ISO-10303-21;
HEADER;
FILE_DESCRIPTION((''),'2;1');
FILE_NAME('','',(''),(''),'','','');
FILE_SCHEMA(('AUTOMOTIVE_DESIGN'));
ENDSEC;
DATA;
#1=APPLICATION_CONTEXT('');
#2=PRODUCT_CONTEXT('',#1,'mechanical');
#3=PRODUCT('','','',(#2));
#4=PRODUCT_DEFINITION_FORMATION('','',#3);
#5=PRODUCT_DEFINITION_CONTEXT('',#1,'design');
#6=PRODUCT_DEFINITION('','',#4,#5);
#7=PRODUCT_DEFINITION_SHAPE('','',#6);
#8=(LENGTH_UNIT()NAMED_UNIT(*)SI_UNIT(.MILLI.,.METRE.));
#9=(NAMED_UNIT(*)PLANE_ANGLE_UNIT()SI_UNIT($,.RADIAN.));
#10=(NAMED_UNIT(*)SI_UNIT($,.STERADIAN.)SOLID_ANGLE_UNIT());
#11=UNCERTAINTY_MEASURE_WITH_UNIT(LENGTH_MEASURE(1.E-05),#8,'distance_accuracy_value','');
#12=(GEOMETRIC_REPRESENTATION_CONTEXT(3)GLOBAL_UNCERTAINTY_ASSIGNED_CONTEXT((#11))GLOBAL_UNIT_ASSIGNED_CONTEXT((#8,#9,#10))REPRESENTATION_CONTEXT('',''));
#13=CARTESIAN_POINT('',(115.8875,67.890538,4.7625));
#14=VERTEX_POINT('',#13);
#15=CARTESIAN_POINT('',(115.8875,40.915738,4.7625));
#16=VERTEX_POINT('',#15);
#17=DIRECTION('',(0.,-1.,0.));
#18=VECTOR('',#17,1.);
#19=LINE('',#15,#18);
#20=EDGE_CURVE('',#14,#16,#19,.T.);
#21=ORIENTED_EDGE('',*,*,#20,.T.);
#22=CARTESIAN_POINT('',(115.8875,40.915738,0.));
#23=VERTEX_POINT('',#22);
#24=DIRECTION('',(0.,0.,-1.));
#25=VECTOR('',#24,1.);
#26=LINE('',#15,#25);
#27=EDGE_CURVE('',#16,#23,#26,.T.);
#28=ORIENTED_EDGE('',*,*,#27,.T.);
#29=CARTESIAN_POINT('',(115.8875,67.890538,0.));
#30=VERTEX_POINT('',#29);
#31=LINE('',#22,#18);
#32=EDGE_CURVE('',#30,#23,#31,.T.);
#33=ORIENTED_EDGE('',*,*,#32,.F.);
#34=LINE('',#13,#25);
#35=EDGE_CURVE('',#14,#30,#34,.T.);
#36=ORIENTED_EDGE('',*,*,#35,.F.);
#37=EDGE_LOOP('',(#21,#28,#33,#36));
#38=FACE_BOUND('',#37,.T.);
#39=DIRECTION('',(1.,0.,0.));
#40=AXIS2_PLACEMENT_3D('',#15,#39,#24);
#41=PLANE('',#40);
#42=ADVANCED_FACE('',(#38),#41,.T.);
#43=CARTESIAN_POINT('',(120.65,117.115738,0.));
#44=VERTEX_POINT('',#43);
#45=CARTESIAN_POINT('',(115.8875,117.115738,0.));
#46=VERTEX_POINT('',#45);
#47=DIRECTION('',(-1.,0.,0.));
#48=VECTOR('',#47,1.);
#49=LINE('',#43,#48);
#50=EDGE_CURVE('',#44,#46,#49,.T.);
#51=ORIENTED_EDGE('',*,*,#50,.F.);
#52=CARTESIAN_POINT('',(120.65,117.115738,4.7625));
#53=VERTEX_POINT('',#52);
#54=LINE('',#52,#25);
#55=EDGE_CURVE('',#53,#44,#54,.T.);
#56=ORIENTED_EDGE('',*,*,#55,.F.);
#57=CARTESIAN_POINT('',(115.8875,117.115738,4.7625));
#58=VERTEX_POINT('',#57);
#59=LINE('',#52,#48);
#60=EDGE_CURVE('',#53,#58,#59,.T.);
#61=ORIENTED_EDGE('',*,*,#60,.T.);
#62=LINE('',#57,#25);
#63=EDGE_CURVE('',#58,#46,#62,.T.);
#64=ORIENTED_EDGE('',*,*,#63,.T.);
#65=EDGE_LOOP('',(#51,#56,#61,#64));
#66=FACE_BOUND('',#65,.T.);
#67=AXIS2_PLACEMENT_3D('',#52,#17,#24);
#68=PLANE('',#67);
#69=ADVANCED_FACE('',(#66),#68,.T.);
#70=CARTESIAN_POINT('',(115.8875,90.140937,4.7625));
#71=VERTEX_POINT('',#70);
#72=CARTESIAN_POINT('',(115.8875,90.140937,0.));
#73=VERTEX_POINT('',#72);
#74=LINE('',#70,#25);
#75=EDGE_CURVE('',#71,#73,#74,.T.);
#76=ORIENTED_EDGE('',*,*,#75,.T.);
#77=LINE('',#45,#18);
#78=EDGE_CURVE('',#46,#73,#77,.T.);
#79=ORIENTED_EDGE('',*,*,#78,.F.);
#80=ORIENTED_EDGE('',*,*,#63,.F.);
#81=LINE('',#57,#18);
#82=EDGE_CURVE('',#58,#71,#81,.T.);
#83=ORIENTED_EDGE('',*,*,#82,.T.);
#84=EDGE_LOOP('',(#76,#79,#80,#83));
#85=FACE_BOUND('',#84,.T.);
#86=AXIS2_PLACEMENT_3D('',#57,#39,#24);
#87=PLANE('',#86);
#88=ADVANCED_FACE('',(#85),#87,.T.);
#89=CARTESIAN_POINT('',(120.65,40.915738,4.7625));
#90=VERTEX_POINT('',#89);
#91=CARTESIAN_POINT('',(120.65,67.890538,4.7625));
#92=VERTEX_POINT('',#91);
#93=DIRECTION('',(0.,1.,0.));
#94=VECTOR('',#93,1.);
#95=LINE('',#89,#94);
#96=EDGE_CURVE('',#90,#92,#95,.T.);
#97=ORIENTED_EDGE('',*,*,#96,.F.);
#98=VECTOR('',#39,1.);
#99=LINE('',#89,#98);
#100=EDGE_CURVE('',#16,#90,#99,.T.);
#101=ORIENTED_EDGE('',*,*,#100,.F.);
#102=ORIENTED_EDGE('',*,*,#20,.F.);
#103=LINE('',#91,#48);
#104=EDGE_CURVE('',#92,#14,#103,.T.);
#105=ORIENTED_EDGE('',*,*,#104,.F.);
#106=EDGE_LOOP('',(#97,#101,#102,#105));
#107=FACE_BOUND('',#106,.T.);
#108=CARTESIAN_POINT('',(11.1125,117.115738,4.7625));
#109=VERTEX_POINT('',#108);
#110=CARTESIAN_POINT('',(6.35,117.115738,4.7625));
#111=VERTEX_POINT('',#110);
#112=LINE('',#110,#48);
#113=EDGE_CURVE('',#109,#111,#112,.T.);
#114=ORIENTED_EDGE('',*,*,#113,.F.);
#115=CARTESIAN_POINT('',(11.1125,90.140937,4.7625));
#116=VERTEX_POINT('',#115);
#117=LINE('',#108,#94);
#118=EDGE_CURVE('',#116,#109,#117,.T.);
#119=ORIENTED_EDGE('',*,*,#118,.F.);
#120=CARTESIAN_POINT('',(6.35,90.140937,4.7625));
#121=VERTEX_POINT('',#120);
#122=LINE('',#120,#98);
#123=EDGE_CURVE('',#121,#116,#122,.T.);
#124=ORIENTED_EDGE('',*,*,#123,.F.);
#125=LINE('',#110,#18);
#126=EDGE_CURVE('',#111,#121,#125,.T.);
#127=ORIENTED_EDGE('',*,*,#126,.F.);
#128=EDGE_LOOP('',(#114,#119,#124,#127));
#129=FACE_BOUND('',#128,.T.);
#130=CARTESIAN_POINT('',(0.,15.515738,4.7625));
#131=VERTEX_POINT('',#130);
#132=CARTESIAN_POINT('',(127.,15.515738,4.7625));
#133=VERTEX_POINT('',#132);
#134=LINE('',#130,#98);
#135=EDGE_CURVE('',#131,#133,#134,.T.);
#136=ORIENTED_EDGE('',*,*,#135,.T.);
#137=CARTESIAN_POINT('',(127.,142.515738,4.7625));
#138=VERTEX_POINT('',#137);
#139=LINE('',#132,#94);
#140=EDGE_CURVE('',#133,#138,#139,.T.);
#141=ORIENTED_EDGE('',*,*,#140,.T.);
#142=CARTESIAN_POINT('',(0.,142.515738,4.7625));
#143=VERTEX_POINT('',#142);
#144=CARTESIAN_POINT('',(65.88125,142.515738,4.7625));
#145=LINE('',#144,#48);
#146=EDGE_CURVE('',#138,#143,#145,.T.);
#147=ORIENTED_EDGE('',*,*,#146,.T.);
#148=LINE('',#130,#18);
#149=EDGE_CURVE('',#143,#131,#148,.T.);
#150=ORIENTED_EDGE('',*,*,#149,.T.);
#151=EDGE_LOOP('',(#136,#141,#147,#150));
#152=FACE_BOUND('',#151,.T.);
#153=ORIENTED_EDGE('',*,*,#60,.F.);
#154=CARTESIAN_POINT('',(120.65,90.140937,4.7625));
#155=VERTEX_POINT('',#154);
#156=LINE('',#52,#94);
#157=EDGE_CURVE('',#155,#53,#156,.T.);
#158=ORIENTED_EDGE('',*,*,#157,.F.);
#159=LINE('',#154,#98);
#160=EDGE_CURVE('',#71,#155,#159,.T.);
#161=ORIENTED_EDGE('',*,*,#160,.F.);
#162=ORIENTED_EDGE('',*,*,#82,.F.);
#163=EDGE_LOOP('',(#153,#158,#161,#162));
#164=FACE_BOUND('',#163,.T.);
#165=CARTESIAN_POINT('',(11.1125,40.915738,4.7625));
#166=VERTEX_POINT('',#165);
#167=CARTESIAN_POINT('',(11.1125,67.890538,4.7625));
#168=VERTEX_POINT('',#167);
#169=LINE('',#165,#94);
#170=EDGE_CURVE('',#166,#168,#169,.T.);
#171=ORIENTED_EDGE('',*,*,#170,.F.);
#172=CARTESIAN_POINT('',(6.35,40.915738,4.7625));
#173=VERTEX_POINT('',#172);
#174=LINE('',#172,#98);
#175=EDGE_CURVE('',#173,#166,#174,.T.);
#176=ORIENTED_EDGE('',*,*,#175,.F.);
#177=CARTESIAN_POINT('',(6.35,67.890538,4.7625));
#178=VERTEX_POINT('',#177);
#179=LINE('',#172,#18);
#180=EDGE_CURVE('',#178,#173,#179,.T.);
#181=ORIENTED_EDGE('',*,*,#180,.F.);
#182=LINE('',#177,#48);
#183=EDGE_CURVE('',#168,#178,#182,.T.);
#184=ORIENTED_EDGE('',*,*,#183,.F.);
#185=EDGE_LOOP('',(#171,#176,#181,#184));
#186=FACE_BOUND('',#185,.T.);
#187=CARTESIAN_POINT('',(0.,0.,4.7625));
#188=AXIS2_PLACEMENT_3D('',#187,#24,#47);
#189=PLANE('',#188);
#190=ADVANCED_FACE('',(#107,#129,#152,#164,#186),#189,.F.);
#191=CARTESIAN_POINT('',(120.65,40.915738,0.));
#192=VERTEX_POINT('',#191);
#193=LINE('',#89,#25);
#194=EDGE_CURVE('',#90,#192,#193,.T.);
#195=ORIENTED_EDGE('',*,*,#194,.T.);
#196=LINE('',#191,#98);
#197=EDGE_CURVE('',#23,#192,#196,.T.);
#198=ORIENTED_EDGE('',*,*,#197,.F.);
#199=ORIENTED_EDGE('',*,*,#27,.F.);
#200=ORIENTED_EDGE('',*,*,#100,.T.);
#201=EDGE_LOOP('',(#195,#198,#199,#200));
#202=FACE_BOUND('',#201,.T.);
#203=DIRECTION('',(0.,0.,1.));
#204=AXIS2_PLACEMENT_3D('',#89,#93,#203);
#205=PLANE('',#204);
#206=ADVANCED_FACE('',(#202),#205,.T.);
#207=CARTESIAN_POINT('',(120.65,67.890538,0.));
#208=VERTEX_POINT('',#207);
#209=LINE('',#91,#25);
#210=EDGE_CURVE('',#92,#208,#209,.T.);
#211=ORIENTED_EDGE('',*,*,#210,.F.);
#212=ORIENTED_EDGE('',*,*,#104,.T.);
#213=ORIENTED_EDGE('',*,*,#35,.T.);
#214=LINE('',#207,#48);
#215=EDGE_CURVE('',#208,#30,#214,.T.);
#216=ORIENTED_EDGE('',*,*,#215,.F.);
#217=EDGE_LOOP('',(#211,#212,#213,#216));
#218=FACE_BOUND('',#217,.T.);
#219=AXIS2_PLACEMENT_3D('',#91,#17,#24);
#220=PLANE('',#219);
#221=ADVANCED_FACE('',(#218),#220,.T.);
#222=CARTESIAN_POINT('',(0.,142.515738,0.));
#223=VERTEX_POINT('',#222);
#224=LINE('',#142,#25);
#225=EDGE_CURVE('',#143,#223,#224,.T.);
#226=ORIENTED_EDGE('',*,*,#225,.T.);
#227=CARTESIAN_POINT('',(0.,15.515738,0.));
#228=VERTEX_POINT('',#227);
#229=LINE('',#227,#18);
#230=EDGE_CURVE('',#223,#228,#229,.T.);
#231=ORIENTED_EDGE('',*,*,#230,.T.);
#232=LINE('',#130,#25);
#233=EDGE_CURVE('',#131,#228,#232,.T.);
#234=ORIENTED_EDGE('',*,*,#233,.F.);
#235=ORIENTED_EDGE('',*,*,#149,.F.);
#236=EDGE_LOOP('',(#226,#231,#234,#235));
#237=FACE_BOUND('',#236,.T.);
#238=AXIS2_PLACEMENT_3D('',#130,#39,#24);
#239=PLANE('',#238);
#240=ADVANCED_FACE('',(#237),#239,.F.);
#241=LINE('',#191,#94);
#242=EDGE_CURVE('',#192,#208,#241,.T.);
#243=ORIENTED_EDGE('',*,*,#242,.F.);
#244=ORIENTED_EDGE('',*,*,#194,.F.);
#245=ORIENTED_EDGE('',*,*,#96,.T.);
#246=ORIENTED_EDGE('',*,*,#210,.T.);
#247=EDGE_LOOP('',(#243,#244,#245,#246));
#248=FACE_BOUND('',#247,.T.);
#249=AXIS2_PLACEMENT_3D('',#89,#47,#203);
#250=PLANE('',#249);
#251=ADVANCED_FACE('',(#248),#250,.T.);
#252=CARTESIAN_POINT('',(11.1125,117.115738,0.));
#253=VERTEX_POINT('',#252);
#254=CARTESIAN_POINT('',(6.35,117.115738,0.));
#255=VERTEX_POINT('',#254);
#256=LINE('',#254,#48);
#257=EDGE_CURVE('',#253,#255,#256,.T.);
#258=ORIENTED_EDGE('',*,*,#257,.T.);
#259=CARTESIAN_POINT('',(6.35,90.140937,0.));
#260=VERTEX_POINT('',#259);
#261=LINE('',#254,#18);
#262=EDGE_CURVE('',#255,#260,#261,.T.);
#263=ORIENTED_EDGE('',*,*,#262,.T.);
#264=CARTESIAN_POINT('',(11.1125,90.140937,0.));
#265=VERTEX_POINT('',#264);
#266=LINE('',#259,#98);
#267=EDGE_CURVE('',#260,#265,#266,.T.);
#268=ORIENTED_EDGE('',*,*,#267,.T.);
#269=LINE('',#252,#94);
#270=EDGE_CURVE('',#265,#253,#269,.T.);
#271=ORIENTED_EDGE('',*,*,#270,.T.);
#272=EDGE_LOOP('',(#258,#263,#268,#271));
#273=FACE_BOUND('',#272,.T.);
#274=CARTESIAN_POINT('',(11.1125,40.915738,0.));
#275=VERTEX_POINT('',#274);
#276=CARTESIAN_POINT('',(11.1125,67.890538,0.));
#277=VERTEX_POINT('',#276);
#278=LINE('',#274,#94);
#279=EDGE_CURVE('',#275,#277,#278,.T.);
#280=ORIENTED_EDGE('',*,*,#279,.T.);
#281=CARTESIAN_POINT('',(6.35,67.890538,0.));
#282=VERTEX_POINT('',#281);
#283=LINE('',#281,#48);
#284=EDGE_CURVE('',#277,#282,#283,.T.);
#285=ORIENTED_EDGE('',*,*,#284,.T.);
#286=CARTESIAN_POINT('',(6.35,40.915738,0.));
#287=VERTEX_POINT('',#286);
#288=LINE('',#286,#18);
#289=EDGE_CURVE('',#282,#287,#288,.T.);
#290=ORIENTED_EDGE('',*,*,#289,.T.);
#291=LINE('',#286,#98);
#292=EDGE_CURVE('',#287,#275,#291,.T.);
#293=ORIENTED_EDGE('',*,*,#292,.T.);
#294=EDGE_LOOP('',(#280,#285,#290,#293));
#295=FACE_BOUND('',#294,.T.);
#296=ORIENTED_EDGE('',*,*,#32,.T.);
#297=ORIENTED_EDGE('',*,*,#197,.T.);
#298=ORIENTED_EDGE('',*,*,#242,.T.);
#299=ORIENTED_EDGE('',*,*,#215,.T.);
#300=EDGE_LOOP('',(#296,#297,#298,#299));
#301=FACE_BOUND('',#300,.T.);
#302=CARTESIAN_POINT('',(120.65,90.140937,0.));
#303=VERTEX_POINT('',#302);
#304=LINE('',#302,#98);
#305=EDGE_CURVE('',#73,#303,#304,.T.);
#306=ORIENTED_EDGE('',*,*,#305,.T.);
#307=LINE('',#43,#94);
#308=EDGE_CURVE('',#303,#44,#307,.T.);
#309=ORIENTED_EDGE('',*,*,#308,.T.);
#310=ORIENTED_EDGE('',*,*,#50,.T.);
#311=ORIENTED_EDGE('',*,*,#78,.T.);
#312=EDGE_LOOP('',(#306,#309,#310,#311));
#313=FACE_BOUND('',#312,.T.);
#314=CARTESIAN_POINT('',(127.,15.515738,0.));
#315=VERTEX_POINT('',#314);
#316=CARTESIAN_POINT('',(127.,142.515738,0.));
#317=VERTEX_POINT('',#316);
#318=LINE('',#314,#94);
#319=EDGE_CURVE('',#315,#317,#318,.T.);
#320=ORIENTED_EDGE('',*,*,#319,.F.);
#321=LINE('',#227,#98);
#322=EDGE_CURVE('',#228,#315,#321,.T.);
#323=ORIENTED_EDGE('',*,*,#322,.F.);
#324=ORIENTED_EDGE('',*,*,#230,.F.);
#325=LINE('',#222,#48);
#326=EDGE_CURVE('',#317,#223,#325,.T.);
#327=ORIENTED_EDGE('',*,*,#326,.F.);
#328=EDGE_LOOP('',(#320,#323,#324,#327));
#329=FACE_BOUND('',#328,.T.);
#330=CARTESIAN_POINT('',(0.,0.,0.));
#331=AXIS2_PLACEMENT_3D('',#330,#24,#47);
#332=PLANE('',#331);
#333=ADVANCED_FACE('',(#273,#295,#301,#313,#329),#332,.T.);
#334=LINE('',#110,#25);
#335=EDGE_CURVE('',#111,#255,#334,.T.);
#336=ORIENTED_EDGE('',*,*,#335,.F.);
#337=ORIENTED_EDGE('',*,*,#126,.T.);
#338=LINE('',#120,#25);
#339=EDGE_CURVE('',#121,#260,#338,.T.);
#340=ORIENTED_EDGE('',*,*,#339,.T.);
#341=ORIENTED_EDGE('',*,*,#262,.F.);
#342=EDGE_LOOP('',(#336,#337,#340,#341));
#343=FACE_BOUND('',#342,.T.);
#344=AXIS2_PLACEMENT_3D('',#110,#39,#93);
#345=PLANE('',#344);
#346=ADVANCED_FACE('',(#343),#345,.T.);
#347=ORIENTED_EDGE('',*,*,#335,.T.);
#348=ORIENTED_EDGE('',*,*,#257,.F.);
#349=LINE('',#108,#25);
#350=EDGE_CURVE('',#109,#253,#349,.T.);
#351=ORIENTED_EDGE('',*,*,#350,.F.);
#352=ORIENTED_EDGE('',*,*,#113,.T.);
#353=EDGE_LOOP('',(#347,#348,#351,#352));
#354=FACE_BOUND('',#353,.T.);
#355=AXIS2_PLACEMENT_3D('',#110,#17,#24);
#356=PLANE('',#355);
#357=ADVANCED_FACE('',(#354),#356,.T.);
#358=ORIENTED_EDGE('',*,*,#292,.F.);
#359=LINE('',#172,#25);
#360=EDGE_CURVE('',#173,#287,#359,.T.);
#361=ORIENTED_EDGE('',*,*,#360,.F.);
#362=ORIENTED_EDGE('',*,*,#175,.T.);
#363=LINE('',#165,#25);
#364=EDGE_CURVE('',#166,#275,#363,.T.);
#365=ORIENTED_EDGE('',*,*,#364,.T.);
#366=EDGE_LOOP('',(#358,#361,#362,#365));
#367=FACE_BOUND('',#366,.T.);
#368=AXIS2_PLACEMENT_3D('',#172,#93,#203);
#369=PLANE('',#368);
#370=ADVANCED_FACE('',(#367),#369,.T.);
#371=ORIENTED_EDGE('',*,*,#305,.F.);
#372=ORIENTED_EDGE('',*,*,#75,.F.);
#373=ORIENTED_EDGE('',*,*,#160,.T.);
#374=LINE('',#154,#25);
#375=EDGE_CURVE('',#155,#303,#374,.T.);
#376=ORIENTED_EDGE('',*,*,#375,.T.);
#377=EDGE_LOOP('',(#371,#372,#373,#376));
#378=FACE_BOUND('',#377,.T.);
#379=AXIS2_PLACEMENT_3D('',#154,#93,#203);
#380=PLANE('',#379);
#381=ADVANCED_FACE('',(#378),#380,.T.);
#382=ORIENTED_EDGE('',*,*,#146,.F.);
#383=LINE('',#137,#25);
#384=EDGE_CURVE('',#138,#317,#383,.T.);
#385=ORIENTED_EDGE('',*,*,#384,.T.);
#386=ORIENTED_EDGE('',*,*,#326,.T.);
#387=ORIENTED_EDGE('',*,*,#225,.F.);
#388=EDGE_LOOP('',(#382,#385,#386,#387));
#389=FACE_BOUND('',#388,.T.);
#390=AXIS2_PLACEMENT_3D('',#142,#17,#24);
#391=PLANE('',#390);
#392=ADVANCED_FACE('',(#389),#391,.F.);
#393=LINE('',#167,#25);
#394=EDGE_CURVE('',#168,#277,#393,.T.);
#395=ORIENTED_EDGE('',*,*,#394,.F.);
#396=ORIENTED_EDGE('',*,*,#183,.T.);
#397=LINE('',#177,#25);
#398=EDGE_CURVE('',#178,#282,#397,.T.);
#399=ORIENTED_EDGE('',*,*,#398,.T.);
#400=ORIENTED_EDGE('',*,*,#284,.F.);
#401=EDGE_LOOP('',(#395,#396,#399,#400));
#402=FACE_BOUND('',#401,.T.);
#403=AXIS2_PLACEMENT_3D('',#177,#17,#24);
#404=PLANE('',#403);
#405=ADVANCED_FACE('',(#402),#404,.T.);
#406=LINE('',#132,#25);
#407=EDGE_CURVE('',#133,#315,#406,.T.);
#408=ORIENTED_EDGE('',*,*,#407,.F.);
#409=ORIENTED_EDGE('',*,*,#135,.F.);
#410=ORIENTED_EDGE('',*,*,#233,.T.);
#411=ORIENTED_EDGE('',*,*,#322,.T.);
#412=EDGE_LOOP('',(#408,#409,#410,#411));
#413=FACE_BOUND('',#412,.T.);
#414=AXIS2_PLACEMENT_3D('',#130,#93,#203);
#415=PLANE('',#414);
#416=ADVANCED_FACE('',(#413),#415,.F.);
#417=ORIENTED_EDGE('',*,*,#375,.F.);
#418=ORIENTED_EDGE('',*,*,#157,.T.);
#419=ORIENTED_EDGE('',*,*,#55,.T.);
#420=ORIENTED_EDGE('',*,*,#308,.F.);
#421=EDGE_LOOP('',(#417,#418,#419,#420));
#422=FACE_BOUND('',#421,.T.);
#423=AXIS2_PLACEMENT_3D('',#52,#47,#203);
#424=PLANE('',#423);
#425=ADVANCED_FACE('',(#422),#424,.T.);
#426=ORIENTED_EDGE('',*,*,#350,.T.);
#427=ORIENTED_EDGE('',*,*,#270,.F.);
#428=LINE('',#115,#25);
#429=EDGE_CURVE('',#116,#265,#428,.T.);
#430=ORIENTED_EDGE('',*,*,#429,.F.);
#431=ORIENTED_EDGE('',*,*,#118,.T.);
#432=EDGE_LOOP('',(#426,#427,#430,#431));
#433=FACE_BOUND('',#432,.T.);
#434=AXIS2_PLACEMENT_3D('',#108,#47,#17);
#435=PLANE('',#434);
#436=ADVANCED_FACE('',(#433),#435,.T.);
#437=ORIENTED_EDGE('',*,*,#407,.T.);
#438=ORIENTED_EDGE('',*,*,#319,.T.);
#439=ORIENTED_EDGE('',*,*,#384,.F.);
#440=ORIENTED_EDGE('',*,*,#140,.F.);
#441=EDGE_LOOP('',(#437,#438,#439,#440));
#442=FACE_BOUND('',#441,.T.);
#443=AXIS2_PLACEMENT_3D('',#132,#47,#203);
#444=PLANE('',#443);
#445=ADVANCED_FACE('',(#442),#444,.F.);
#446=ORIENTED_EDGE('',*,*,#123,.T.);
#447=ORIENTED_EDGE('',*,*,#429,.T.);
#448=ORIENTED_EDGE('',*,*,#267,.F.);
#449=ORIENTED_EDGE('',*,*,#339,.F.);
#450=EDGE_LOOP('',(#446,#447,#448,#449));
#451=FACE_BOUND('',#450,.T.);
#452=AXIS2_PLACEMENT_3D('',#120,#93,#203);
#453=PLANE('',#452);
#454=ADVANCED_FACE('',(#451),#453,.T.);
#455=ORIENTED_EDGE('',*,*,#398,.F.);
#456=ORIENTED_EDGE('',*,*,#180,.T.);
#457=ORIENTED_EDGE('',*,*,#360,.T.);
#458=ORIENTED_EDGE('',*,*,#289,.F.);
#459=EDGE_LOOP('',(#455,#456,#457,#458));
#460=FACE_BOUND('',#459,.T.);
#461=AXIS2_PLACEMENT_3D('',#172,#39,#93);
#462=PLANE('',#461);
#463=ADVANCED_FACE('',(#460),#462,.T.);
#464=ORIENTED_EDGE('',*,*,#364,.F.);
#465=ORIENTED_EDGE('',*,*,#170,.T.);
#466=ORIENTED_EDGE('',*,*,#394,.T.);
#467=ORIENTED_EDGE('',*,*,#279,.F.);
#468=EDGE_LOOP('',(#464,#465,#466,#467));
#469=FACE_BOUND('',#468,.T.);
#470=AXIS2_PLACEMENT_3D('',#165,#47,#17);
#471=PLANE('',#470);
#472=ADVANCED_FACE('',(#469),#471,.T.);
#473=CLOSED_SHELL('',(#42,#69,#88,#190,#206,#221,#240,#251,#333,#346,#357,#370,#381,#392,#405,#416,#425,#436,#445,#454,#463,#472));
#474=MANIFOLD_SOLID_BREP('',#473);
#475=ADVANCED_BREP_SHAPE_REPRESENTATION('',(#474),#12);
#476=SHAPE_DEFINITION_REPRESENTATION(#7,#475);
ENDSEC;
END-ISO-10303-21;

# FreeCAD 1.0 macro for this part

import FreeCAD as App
import Part
import Sketcher
Q = App.Units.Quantity


def add_polygon(sketch, points):
    """Adds a closed chain of lines whose ends are joined by coincident constraints."""
    first, n = sketch.GeometryCount, len(points)
    for a, b in zip(points, points[1:] + points[:1]):
        sketch.addGeometry(Part.LineSegment(App.Vector(*a, 0), App.Vector(*b, 0)), False)
    for i in range(n):
        sketch.addConstraint(Sketcher.Constraint("Coincident", first + i, 2, first + (i + 1) % n, 1))

doc = App.newDocument("Part")
body = doc.addObject("PartDesign::Body", "Body")

# Sketch on XY plane
sketch1 = body.newObject("Sketcher::SketchObject", "Sketch")
sketch1.AttachmentSupport = (doc.getObject("XY_Plane"), [""])
sketch1.MapMode = "FlatFace"
add_polygon(sketch1, [(127, 142.515738), (0, 142.515738), (0, 15.515738), (127, 15.515738)])  # lines 0-3
add_polygon(sketch1, [(115.8875, 40.915738), (115.8875, 67.890538), (120.65, 67.890538), (120.65, 40.915738)])  # lines 4-7
add_polygon(sketch1, [(6.35, 40.915738), (6.35, 67.890538), (11.1125, 67.890538), (11.1125, 40.915738)])  # lines 8-11
add_polygon(sketch1, [(115.8875, 90.140937), (115.8875, 117.115738), (120.65, 117.115738), (120.65, 90.140937)])  # lines 12-15
add_polygon(sketch1, [(6.35, 90.140937), (6.35, 117.115738), (11.1125, 117.115738), (11.1125, 90.140937)])  # lines 16-19
sketch1.addConstraint(Sketcher.Constraint("Horizontal", 0))
sketch1.addConstraint(Sketcher.Constraint("Vertical", 1))
sketch1.addConstraint(Sketcher.Constraint("Horizontal", 2))
sketch1.addConstraint(Sketcher.Constraint("Vertical", 3))
sketch1.addConstraint(Sketcher.Constraint("Vertical", 4))
sketch1.addConstraint(Sketcher.Constraint("Horizontal", 5))
sketch1.addConstraint(Sketcher.Constraint("Vertical", 6))
sketch1.addConstraint(Sketcher.Constraint("Horizontal", 7))
sketch1.addConstraint(Sketcher.Constraint("Vertical", 8))
sketch1.addConstraint(Sketcher.Constraint("Horizontal", 9))
sketch1.addConstraint(Sketcher.Constraint("Vertical", 10))
sketch1.addConstraint(Sketcher.Constraint("Horizontal", 11))
sketch1.addConstraint(Sketcher.Constraint("Vertical", 12))
sketch1.addConstraint(Sketcher.Constraint("Horizontal", 13))
sketch1.addConstraint(Sketcher.Constraint("Vertical", 14))
sketch1.addConstraint(Sketcher.Constraint("Horizontal", 15))
sketch1.addConstraint(Sketcher.Constraint("Vertical", 16))
sketch1.addConstraint(Sketcher.Constraint("Horizontal", 17))
sketch1.addConstraint(Sketcher.Constraint("Vertical", 18))
sketch1.addConstraint(Sketcher.Constraint("Horizontal", 19))
sketch1.addConstraint(Sketcher.Constraint("PointOnObject", 0, 2, -2))
sketch1.addConstraint(Sketcher.Constraint("Horizontal", 5, 2, 8, 2))
sketch1.addConstraint(Sketcher.Constraint("Horizontal", 7, 2, 10, 2))
sketch1.addConstraint(Sketcher.Constraint("Horizontal", 13, 2, 16, 2))
sketch1.addConstraint(Sketcher.Constraint("Horizontal", 15, 2, 18, 2))
sketch1.addConstraint(Sketcher.Constraint("Vertical", 7, 2, 12, 2))
sketch1.addConstraint(Sketcher.Constraint("Vertical", 6, 2, 13, 2))
sketch1.addConstraint(Sketcher.Constraint("Vertical", 11, 2, 16, 2))
sketch1.addConstraint(Sketcher.Constraint("Vertical", 10, 2, 17, 2))
sketch1.addConstraint(Sketcher.Constraint("Equal", 7, 9))
sketch1.addConstraint(Sketcher.Constraint("Equal", 2, 1))
sketch1.addConstraint(Sketcher.Constraint("Equal", 10, 12))
sketch1.addConstraint(Sketcher.Constraint("DistanceX", 0, 2, 0, 1, Q("5 in")))
sketch1.addConstraint(Sketcher.Constraint("DistanceY", 2, 2, 6, 2, Q("1 in")))
sketch1.addConstraint(Sketcher.Constraint("DistanceY", 12, 2, 3, 2, Q("1 in")))
sketch1.addConstraint(Sketcher.Constraint("DistanceX", 8, 2, 5, 2, Q("4.5 in")))
sketch1.addConstraint(Sketcher.Constraint("DistanceX", 5, 1, 5, 2, Q("0.1875 in")))
sketch1.addConstraint(Sketcher.Constraint("DistanceY", 4, 1, 4, 2, Q("1.062 in")))
sketch1.addConstraint(Sketcher.Constraint("DistanceX", -1, 1, 5, 2, Q("4.75 in")))
sketch1.addConstraint(Sketcher.Constraint("DistanceY", -1, 1, 4, 2, 67.890538))
pad1 = body.newObject("PartDesign::Pad", "Pad")
pad1.Profile = sketch1
pad1.Length = Q("0.1875 in")

doc.recompute()
